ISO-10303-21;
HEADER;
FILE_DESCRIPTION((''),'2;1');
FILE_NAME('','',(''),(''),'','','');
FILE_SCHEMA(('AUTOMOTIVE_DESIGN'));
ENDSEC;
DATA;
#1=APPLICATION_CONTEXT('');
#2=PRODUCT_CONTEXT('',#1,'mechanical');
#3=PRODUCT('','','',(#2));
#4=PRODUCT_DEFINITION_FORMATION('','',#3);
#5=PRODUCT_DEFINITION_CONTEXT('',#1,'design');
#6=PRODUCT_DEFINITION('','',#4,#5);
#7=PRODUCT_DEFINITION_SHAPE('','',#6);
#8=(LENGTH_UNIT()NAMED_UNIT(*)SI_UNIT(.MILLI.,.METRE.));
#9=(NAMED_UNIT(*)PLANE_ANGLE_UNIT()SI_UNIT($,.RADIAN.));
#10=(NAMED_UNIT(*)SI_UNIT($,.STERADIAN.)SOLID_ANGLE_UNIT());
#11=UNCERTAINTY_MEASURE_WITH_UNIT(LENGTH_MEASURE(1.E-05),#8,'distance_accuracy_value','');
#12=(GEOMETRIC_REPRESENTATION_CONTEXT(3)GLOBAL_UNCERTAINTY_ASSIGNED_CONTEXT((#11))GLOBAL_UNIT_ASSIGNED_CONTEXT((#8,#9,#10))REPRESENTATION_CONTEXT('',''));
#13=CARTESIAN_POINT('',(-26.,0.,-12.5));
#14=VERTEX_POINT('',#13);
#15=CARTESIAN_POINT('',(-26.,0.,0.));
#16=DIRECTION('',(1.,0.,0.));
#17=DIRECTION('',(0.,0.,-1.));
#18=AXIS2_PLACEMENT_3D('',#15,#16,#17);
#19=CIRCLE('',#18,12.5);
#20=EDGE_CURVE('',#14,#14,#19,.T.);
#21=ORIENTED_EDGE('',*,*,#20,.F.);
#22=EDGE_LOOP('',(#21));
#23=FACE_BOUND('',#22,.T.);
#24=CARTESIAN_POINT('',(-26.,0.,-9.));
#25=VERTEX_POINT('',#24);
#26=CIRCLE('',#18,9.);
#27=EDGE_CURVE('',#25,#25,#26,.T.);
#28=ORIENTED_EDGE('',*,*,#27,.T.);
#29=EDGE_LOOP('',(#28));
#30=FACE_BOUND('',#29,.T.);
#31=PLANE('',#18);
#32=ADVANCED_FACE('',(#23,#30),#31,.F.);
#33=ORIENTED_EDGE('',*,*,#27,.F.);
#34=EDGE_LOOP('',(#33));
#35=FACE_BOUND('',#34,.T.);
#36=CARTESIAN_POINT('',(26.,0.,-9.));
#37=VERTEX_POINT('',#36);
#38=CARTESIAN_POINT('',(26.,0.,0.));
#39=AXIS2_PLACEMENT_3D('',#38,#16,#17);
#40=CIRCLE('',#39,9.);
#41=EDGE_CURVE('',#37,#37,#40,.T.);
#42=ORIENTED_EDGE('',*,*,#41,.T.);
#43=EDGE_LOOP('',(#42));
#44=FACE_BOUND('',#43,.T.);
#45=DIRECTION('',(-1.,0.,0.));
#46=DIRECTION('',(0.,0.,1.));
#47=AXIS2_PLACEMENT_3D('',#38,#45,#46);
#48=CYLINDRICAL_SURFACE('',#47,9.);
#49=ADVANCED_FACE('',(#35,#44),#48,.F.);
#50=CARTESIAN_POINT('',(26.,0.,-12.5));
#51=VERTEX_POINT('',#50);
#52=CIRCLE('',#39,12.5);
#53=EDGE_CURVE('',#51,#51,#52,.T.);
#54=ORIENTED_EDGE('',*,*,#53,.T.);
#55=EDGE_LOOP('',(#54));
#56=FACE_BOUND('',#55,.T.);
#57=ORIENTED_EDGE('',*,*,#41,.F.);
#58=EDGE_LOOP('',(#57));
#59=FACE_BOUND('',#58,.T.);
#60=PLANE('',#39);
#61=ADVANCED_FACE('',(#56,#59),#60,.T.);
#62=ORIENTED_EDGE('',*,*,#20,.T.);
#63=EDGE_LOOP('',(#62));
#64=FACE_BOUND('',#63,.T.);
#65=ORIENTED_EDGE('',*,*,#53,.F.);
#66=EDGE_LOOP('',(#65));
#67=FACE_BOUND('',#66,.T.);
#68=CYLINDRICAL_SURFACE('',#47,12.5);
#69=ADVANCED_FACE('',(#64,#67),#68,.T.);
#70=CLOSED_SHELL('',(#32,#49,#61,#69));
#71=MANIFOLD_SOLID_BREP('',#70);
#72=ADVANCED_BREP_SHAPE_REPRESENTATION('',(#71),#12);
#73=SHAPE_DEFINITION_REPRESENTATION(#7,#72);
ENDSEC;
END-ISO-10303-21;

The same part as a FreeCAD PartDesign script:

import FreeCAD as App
import Part
import Sketcher
Q = App.Units.Quantity

doc = App.newDocument("Part")
params = doc.addObject("Spreadsheet::Sheet", "Params")
for row, (alias, value) in enumerate([
    ("sketch1_diameter", "25 mm"),
    ("sketch1_diameter2", "18 mm"),
    ("pad1_length", "52 mm"),
], start=1):
    params.set(f"A{row}", alias)
    params.set(f"B{row}", "=" + value)
    params.setAlias(f"B{row}", alias)

body = doc.addObject("PartDesign::Body", "Body")

sketch1 = body.newObject("Sketcher::SketchObject", "Sketch")
sketch1.AttachmentSupport = (doc.getObject("YZ_Plane"), [""])
sketch1.MapMode = "FlatFace"
sketch1.addGeometry([
    Part.Circle(App.Vector(0, 0, 0), App.Vector(0, 0, 1), 12),
    Part.Circle(App.Vector(0, 0, 0), App.Vector(0, 0, 1), 9),
], False)
sketch1.addConstraint([
    Sketcher.Constraint("Coincident", 0, 3, -1, 1),
    Sketcher.Constraint("Coincident", 1, 3, -1, 1),
    Sketcher.Constraint("Diameter", 0, Q("25 mm")),
    Sketcher.Constraint("Diameter", 1, Q("18 mm")),
])
sketch1.setExpression("Constraints[2]", "Params.sketch1_diameter")
sketch1.setExpression("Constraints[3]", "Params.sketch1_diameter2")
pad1 = body.newObject("PartDesign::Pad", "Pad")
pad1.Profile = sketch1
pad1.setExpression("Length", "Params.pad1_length")
pad1.Midplane = True

doc.recompute()
